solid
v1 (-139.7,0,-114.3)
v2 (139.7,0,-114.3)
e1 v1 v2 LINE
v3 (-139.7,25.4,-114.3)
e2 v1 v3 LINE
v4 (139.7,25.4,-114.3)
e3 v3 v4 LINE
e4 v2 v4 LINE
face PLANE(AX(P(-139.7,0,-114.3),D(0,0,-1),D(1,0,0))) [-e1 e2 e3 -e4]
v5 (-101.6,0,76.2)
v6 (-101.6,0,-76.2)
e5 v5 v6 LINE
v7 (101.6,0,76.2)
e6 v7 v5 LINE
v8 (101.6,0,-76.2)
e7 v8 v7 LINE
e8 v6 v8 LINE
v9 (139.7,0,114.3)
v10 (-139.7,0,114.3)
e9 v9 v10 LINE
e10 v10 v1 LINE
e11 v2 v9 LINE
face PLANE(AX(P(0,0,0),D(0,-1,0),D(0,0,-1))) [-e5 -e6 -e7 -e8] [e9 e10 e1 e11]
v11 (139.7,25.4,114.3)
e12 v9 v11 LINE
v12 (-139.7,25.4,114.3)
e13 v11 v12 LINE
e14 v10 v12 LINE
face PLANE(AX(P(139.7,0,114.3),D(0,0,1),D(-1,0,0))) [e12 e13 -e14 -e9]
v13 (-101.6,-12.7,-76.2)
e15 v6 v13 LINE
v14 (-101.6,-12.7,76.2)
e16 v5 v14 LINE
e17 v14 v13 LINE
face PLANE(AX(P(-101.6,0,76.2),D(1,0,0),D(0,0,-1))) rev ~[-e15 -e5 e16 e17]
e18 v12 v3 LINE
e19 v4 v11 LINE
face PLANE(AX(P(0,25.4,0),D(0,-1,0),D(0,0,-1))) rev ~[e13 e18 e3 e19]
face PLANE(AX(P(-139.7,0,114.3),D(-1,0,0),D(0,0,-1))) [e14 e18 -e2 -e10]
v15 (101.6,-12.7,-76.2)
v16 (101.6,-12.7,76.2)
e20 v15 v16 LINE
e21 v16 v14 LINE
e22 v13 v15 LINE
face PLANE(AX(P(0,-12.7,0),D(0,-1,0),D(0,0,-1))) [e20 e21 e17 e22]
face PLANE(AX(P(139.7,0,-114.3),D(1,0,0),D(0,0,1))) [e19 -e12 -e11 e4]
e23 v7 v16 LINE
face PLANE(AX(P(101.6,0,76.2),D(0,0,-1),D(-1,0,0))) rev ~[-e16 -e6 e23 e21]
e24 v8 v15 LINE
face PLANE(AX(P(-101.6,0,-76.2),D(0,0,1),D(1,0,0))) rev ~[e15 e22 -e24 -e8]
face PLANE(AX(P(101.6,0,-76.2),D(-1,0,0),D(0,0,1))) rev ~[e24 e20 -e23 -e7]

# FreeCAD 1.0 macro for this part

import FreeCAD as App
import Part
import Sketcher
from FreeCAD import Vector
Q = App.Units.Quantity

doc = App.newDocument("Part")
params = doc.addObject("Spreadsheet::Sheet", "Params")
for row, (alias, value) in enumerate([
    ("sketch1_width", "11 in"),
    ("sketch1_height", "9 in"),
    ("pad1_length", "1 in"),
    ("sketch2_width", "8 in"),
    ("sketch2_height", "6 in"),
    ("pad2_length", "0.5 in"),
], start=1):
    params.set(f"A{row}", alias)
    params.set(f"B{row}", "=" + value)
    params.setAlias(f"B{row}", alias)

body = doc.addObject("PartDesign::Body", "Body")

# Sketch on XZ plane
sketch1 = body.newObject("Sketcher::SketchObject", "Sketch")
sketch1.AttachmentSupport = (doc.getObject("XZ_Plane"), [""])
sketch1.MapMode = "FlatFace"
sketch1.addGeometry(Part.LineSegment(Vector(140, -114, 0), Vector(140, 114, 0)), False)
sketch1.addGeometry(Part.LineSegment(Vector(140, 114, 0), Vector(-140, 114, 0)), False)
sketch1.addGeometry(Part.LineSegment(Vector(-140, 114, 0), Vector(-140, -114, 0)), False)
sketch1.addGeometry(Part.LineSegment(Vector(-140, -114, 0), Vector(140, -114, 0)), False)
sketch1.addConstraint(Sketcher.Constraint("Coincident", 0, 2, 1, 1))
sketch1.addConstraint(Sketcher.Constraint("Coincident", 1, 2, 2, 1))
sketch1.addConstraint(Sketcher.Constraint("Coincident", 2, 2, 3, 1))
sketch1.addConstraint(Sketcher.Constraint("Coincident", 3, 2, 0, 1))
sketch1.addConstraint(Sketcher.Constraint("Vertical", 0))
sketch1.addConstraint(Sketcher.Constraint("Horizontal", 1))
sketch1.addConstraint(Sketcher.Constraint("Vertical", 2))
sketch1.addConstraint(Sketcher.Constraint("Horizontal", 3))
sketch1.addConstraint(Sketcher.Constraint("Symmetric", 0, 2, 2, 2, -1, 1))
sketch1.addConstraint(Sketcher.Constraint("DistanceX", 1, 2, 1, 1, Q("11 in")))
sketch1.addConstraint(Sketcher.Constraint("DistanceY", 0, 1, 0, 2, Q("9 in")))
sketch1.setExpression("Constraints[9]", "Params.sketch1_width")
sketch1.setExpression("Constraints[10]", "Params.sketch1_height")
pad1 = body.newObject("PartDesign::Pad", "Pad")
pad1.Profile = sketch1
pad1.setExpression("Length", "Params.pad1_length")
pad1.Reversed = True

# Sketch on XZ plane
sketch2 = body.newObject("Sketcher::SketchObject", "Sketch001")
sketch2.AttachmentSupport = (doc.getObject("XZ_Plane"), [""])
sketch2.MapMode = "FlatFace"
sketch2.addGeometry(Part.LineSegment(Vector(102, -76, 0), Vector(102, 76, 0)), False)
sketch2.addGeometry(Part.LineSegment(Vector(102, 76, 0), Vector(-102, 76, 0)), False)
sketch2.addGeometry(Part.LineSegment(Vector(-102, 76, 0), Vector(-102, -76, 0)), False)
sketch2.addGeometry(Part.LineSegment(Vector(-102, -76, 0), Vector(102, -76, 0)), False)
sketch2.addConstraint(Sketcher.Constraint("Coincident", 0, 2, 1, 1))
sketch2.addConstraint(Sketcher.Constraint("Coincident", 1, 2, 2, 1))
sketch2.addConstraint(Sketcher.Constraint("Coincident", 2, 2, 3, 1))
sketch2.addConstraint(Sketcher.Constraint("Coincident", 3, 2, 0, 1))
sketch2.addConstraint(Sketcher.Constraint("Vertical", 0))
sketch2.addConstraint(Sketcher.Constraint("Horizontal", 1))
sketch2.addConstraint(Sketcher.Constraint("Vertical", 2))
sketch2.addConstraint(Sketcher.Constraint("Horizontal", 3))
sketch2.addConstraint(Sketcher.Constraint("Symmetric", 0, 2, 2, 2, -1, 1))
sketch2.addConstraint(Sketcher.Constraint("DistanceX", 1, 2, 1, 1, Q("8 in")))
sketch2.addConstraint(Sketcher.Constraint("DistanceY", 0, 1, 0, 2, Q("6 in")))
sketch2.setExpression("Constraints[9]", "Params.sketch2_width")
sketch2.setExpression("Constraints[10]", "Params.sketch2_height")
pad2 = body.newObject("PartDesign::Pad", "Pad001")
pad2.Profile = sketch2
pad2.setExpression("Length", "Params.pad2_length")

doc.recompute()
